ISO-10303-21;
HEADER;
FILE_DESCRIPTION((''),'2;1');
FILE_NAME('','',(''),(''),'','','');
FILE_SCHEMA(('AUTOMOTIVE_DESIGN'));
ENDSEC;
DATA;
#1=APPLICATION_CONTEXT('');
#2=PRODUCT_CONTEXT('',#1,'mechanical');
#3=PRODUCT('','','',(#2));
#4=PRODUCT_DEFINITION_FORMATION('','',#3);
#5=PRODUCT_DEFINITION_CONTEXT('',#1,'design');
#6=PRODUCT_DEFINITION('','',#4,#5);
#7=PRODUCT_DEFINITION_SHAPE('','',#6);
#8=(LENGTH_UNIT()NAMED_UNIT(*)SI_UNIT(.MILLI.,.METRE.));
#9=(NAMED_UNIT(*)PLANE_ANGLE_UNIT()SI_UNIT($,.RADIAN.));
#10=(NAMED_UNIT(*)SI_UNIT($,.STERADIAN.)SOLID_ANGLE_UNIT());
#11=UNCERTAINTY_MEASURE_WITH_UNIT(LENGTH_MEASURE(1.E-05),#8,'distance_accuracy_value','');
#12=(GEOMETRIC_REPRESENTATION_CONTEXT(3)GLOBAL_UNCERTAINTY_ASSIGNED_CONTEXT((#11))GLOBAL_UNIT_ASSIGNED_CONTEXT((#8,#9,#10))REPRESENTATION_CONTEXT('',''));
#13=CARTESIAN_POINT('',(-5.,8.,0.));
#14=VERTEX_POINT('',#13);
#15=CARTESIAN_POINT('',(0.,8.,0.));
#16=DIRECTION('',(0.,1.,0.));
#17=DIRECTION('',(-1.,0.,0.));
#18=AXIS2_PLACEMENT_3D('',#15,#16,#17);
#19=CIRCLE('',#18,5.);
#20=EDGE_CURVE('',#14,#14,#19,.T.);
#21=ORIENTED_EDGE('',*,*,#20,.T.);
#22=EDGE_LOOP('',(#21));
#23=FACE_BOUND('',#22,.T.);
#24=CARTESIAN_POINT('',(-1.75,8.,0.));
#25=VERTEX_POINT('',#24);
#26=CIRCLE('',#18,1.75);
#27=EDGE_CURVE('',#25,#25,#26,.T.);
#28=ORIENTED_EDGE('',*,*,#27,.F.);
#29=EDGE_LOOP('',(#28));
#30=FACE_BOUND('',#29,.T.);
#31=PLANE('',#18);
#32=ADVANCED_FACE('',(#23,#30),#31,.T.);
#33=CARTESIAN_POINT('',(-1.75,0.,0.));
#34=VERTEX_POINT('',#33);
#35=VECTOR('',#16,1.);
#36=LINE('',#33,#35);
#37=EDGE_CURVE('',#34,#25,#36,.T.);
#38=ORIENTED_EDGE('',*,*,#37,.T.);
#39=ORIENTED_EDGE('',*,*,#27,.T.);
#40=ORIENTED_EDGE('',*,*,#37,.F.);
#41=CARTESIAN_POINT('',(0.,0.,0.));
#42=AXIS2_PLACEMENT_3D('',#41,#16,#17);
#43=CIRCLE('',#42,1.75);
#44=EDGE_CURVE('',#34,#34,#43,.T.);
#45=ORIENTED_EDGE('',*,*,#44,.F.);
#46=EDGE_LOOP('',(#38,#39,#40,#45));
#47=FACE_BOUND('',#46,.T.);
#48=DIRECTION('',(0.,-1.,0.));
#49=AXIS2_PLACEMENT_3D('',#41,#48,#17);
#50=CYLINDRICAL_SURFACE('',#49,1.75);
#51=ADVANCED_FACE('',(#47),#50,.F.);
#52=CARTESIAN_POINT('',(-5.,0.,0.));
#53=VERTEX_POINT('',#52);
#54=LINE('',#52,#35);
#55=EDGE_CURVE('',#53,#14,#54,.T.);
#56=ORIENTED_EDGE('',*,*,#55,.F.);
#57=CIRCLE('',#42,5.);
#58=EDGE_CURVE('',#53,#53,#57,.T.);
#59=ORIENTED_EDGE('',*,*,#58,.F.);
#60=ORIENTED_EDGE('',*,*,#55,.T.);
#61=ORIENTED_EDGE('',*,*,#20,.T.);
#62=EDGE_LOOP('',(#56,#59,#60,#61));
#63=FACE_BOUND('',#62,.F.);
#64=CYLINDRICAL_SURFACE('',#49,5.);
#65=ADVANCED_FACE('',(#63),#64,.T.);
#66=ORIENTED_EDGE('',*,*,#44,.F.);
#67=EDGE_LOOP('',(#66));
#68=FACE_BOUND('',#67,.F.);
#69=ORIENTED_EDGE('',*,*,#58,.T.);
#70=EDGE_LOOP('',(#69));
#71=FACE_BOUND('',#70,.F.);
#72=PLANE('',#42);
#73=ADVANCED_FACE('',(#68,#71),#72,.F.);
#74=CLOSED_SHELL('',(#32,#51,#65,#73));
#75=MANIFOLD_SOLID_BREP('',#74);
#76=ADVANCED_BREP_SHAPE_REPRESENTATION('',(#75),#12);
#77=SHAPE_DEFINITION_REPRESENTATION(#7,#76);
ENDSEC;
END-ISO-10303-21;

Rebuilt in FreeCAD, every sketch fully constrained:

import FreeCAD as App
import Part
import Sketcher
from FreeCAD import Vector

doc = App.newDocument("Part")
body = doc.addObject("PartDesign::Body", "Body")

sketch1 = body.newObject("Sketcher::SketchObject", "Sketch")
sketch1.AttachmentSupport = (doc.getObject("XZ_Plane"), [""])
sketch1.MapMode = "FlatFace"
sketch1.addGeometry([
    Part.Circle(Vector(0, 0, 0), Vector(0, 0, 1), 5),
    Part.Circle(Vector(0, 0, 0), Vector(0, 0, 1), 1.8),
], False)
sketch1.addConstraint([
    Sketcher.Constraint("Coincident", 0, 3, -1, 1),
    Sketcher.Constraint("Coincident", 1, 3, -1, 1),
    Sketcher.Constraint("Diameter", 0, 10.0),
    Sketcher.Constraint("Diameter", 1, 3.5),
])
pad1 = body.newObject("PartDesign::Pad", "Pad")
pad1.Profile = sketch1
pad1.Length = 8
pad1.Reversed = True

doc.recompute()
